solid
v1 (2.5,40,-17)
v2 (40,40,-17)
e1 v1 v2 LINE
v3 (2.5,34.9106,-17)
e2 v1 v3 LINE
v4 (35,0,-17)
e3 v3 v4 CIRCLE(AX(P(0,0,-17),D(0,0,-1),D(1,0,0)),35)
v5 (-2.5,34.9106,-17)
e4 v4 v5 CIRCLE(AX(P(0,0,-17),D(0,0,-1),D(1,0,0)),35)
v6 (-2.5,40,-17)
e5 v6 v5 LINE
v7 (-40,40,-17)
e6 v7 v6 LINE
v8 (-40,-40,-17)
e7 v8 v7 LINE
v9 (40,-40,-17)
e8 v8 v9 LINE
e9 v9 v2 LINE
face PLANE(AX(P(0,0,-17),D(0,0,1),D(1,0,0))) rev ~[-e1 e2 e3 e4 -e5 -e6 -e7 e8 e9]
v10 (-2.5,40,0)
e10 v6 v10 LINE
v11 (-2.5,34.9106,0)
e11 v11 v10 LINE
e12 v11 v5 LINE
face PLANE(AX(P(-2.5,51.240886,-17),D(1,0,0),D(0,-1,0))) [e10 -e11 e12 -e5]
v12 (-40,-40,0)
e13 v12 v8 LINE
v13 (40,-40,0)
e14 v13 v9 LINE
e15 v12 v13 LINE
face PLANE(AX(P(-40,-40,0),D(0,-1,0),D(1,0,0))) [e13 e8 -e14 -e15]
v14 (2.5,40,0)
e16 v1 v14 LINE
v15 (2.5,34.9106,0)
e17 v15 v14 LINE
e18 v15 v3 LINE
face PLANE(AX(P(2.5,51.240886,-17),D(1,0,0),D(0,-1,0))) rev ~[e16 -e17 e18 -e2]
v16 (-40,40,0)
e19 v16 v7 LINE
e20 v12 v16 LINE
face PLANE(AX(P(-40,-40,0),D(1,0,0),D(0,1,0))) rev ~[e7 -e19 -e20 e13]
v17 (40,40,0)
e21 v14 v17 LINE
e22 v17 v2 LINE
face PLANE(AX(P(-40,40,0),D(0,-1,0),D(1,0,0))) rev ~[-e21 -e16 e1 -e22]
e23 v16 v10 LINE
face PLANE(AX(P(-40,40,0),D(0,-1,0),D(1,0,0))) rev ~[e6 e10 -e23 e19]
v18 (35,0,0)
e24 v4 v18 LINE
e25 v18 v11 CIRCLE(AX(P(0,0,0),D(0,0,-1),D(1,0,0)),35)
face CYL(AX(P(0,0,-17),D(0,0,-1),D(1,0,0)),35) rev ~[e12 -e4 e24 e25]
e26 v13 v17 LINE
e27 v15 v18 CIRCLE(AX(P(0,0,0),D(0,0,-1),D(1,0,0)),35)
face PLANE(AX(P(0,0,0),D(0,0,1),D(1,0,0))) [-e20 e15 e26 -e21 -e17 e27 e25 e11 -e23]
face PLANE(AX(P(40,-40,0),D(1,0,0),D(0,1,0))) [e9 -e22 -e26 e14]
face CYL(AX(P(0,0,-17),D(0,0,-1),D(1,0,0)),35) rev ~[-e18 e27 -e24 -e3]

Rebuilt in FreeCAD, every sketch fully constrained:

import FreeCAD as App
import Part
import Sketcher
Q = App.Units.Quantity


def add_polygon(sketch, points):
    """Adds a closed chain of lines whose ends are joined by coincident constraints."""
    first, n = sketch.GeometryCount, len(points)
    for a, b in zip(points, points[1:] + points[:1]):
        sketch.addGeometry(Part.LineSegment(App.Vector(*a, 0), App.Vector(*b, 0)), False)
    for i in range(n):
        sketch.addConstraint(Sketcher.Constraint("Coincident", first + i, 2, first + (i + 1) % n, 1))

doc = App.newDocument("Part")
body = doc.addObject("PartDesign::Body", "Body")

# Sketch on XY plane
sketch1 = body.newObject("Sketcher::SketchObject", "Sketch")
sketch1.AttachmentSupport = (doc.getObject("XY_Plane"), [""])
sketch1.MapMode = "FlatFace"
add_polygon(sketch1, [(-40, 40), (-40, -40), (40, -40), (40, 40)])  # lines 0-3
sketch1.addConstraint([
    Sketcher.Constraint("Vertical", 0),
    Sketcher.Constraint("Horizontal", 1),
    Sketcher.Constraint("Vertical", 2),
    Sketcher.Constraint("Horizontal", 3),
    Sketcher.Constraint("Symmetric", 0, 2, 2, 2, -1, 1),
    Sketcher.Constraint("Equal", 3, 0),
    Sketcher.Constraint("DistanceX", 1, 1, 1, 2, Q("80 mm")),
])
pad1 = body.newObject("PartDesign::Pad", "Pad")
pad1.Profile = sketch1
pad1.Length = 17
pad1.Reversed = True

# Sketch on XY plane
sketch2 = body.newObject("Sketcher::SketchObject", "Sketch001")
sketch2.AttachmentSupport = (doc.getObject("XY_Plane"), [""])
sketch2.MapMode = "FlatFace"
sketch2.AttachmentOffset = App.Placement(App.Vector(0, 0, -17), App.Rotation())
sketch2.addGeometry(Part.Circle(App.Vector(0, 0, 0), App.Vector(0, 0, 1), 35), False)
sketch2.addConstraint([
    Sketcher.Constraint("Coincident", 0, 3, -1, 1),
    Sketcher.Constraint("Diameter", 0, Q("70 mm")),
])
pocket1 = body.newObject("PartDesign::Pocket", "Pocket")
pocket1.Profile = sketch2
pocket1.Length = 20
pocket1.Reversed = True

# Sketch on XY plane
sketch3 = body.newObject("Sketcher::SketchObject", "Sketch002")
sketch3.AttachmentSupport = (doc.getObject("XY_Plane"), [""])
sketch3.MapMode = "FlatFace"
sketch3.AttachmentOffset = App.Placement(App.Vector(0, 0, -17), App.Rotation())
add_polygon(sketch3, [(-2, 31), (-2, 51), (2, 51), (2, 31)])  # lines 0-3
sketch3.addConstraint([
    Sketcher.Constraint("Vertical", 0),
    Sketcher.Constraint("Horizontal", 1),
    Sketcher.Constraint("Vertical", 2),
    Sketcher.Constraint("Horizontal", 3),
    Sketcher.Constraint("DistanceX", 1, 1, 1, 2, Q("5 mm")),
    Sketcher.Constraint("DistanceX", 0, 2, -1, 1, Q("2.5 mm")),
    Sketcher.Constraint("DistanceY", 0, 1, 0, 2, Q("20.180618 mm")),
    Sketcher.Constraint("DistanceY", -1, 1, 2, 2, Q("31.060268 mm")),
])
pocket2 = body.newObject("PartDesign::Pocket", "Pocket001")
pocket2.Profile = sketch3
pocket2.Length = 24
pocket2.Reversed = True

doc.recompute()
